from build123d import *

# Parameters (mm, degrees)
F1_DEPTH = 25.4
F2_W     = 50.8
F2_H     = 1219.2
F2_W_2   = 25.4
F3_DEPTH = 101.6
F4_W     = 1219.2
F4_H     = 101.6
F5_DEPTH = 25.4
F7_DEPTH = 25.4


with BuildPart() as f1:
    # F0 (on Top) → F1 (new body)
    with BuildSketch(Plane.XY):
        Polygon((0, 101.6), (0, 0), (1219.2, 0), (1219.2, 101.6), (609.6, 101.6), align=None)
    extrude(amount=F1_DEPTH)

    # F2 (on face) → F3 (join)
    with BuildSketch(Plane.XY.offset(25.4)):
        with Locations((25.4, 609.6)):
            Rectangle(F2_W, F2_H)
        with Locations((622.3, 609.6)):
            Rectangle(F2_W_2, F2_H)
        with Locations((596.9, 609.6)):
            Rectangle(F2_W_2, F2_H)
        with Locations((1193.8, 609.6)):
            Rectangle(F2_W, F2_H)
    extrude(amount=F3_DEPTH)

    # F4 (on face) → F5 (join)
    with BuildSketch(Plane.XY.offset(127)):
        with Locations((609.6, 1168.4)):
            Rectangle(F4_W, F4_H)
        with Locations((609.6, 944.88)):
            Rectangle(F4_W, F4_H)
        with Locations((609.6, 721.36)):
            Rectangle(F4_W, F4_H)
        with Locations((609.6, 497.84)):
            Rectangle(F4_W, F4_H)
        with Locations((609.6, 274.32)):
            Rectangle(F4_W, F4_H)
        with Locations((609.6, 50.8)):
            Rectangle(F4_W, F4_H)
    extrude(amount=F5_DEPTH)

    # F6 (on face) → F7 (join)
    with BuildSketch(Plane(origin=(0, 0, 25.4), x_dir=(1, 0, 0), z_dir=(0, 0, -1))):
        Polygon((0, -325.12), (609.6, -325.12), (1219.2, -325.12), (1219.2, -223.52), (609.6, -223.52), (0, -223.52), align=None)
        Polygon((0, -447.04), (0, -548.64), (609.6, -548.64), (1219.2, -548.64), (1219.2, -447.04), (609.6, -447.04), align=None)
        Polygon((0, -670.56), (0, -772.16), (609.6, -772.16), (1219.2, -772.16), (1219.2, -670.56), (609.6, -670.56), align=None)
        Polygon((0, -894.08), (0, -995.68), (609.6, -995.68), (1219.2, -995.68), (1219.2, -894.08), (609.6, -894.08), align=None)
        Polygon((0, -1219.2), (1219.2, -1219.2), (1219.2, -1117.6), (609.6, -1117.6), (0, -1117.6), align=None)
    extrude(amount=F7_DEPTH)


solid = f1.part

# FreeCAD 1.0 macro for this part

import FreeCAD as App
import Part
import Sketcher
Q = App.Units.Quantity

doc = App.newDocument("Part")
body = doc.addObject("PartDesign::Body", "Body")

# Sketch on XY plane
sketch1 = body.newObject("Sketcher::SketchObject", "Sketch")
sketch1.AttachmentSupport = (doc.getObject("XY_Plane"), [""])
sketch1.MapMode = "FlatFace"
sketch1.addGeometry([
    Part.LineSegment(App.Vector(0, 101.6, 0), App.Vector(0, 0, 0)),
    Part.LineSegment(App.Vector(0, 0, 0), App.Vector(1219.2, 0, 0)),
    Part.LineSegment(App.Vector(1219.2, 0, 0), App.Vector(1219.2, 101.6, 0)),
    Part.LineSegment(App.Vector(1219.2, 101.6, 0), App.Vector(0, 101.6, 0)),
], False)
sketch1.addConstraint([
    Sketcher.Constraint("Coincident", 0, 2, 1, 1),
    Sketcher.Constraint("Coincident", 1, 2, 2, 1),
    Sketcher.Constraint("Coincident", 2, 2, 3, 1),
    Sketcher.Constraint("Coincident", 3, 2, 0, 1),
    Sketcher.Constraint("Vertical", 0),
    Sketcher.Constraint("Horizontal", 1),
    Sketcher.Constraint("Vertical", 2),
    Sketcher.Constraint("Horizontal", 3),
    Sketcher.Constraint("Coincident", 0, 2, -1, 1),
    Sketcher.Constraint("DistanceX", 1, 1, 1, 2, Q("48 in")),
    Sketcher.Constraint("DistanceY", 0, 2, 0, 1, Q("4 in")),
])
pad1 = body.newObject("PartDesign::Pad", "Pad")
pad1.Profile = sketch1
pad1.Length = Q("1 in")

# Sketch on XY plane
sketch2 = body.newObject("Sketcher::SketchObject", "Sketch001")
sketch2.AttachmentSupport = (doc.getObject("XY_Plane"), [""])
sketch2.MapMode = "FlatFace"
sketch2.AttachmentOffset = App.Placement(App.Vector(0, 0, 1 * 25.4), App.Rotation())
sketch2.addGeometry([
    Part.LineSegment(App.Vector(0, 1219.2, 0), App.Vector(0, 0, 0)),  # 0
    Part.LineSegment(App.Vector(0, 0, 0), App.Vector(50.8, 0, 0)),  # 1
    Part.LineSegment(App.Vector(50.8, 0, 0), App.Vector(50.8, 1219.2, 0)),  # 2
    Part.LineSegment(App.Vector(50.8, 1219.2, 0), App.Vector(0, 1219.2, 0)),  # 3
    Part.LineSegment(App.Vector(635, 0, 0), App.Vector(635, 1219.2, 0)),  # 4
    Part.LineSegment(App.Vector(635, 1219.2, 0), App.Vector(584.2, 1219.2, 0)),  # 5
    Part.LineSegment(App.Vector(584.2, 1219.2, 0), App.Vector(584.2, 0, 0)),  # 6
    Part.LineSegment(App.Vector(584.2, 0, 0), App.Vector(635, 0, 0)),  # 7
    Part.LineSegment(App.Vector(1168.4, 1219.2, 0), App.Vector(1168.4, 0, 0)),  # 8
    Part.LineSegment(App.Vector(1168.4, 0, 0), App.Vector(1219.2, 0, 0)),  # 9
    Part.LineSegment(App.Vector(1219.2, 0, 0), App.Vector(1219.2, 1219.2, 0)),  # 10
    Part.LineSegment(App.Vector(1219.2, 1219.2, 0), App.Vector(1168.4, 1219.2, 0)),  # 11
], False)
sketch2.addConstraint([
    Sketcher.Constraint("Coincident", 0, 2, 1, 1),
    Sketcher.Constraint("Coincident", 1, 2, 2, 1),
    Sketcher.Constraint("Coincident", 2, 2, 3, 1),
    Sketcher.Constraint("Coincident", 3, 2, 0, 1),
    Sketcher.Constraint("Coincident", 4, 2, 5, 1),
    Sketcher.Constraint("Coincident", 5, 2, 6, 1),
    Sketcher.Constraint("Coincident", 6, 2, 7, 1),
    Sketcher.Constraint("Coincident", 7, 2, 4, 1),
    Sketcher.Constraint("Coincident", 8, 2, 9, 1),
    Sketcher.Constraint("Coincident", 9, 2, 10, 1),
    Sketcher.Constraint("Coincident", 10, 2, 11, 1),
    Sketcher.Constraint("Coincident", 11, 2, 8, 1),
    Sketcher.Constraint("Vertical", 0),
    Sketcher.Constraint("Horizontal", 1),
    Sketcher.Constraint("Vertical", 2),
    Sketcher.Constraint("Horizontal", 3),
    Sketcher.Constraint("Vertical", 4),
    Sketcher.Constraint("Horizontal", 5),
    Sketcher.Constraint("Vertical", 6),
    Sketcher.Constraint("Horizontal", 7),
    Sketcher.Constraint("Vertical", 8),
    Sketcher.Constraint("Horizontal", 9),
    Sketcher.Constraint("Vertical", 10),
    Sketcher.Constraint("Horizontal", 11),
    Sketcher.Constraint("Coincident", 0, 2, -1, 1),
    Sketcher.Constraint("PointOnObject", 6, 2, -1),
    Sketcher.Constraint("PointOnObject", 8, 2, -1),
    Sketcher.Constraint("Horizontal", 3, 2, 4, 2),
    Sketcher.Constraint("Horizontal", 5, 2, 10, 2),
    Sketcher.Constraint("Equal", 3, 5),
    Sketcher.Constraint("Equal", 7, 9),
    Sketcher.Constraint("DistanceX", 1, 1, 1, 2, Q("2 in")),
    Sketcher.Constraint("DistanceY", 0, 2, 0, 1, Q("48 in")),
    Sketcher.Constraint("DistanceX", -1, 1, 4, 2, Q("25 in")),
    Sketcher.Constraint("DistanceX", -1, 1, 8, 2, Q("46 in")),
])
pad2 = body.newObject("PartDesign::Pad", "Pad001")
pad2.Profile = sketch2
pad2.Length = Q("4 in")

# Sketch on XY plane
sketch3 = body.newObject("Sketcher::SketchObject", "Sketch002")
sketch3.AttachmentSupport = (doc.getObject("XY_Plane"), [""])
sketch3.MapMode = "FlatFace"
sketch3.AttachmentOffset = App.Placement(App.Vector(0, 0, 5 * 25.4), App.Rotation())
sketch3.addGeometry([
    Part.LineSegment(App.Vector(0, 1219.2, 0), App.Vector(0, 1117.6, 0)),  # 0
    Part.LineSegment(App.Vector(0, 1117.6, 0), App.Vector(1219.2, 1117.6, 0)),  # 1
    Part.LineSegment(App.Vector(1219.2, 1117.6, 0), App.Vector(1219.2, 1219.2, 0)),  # 2
    Part.LineSegment(App.Vector(1219.2, 1219.2, 0), App.Vector(0, 1219.2, 0)),  # 3
    Part.LineSegment(App.Vector(0, 995.68, 0), App.Vector(0, 894.08, 0)),  # 4
    Part.LineSegment(App.Vector(0, 894.08, 0), App.Vector(1219.2, 894.08, 0)),  # 5
    Part.LineSegment(App.Vector(1219.2, 894.08, 0), App.Vector(1219.2, 995.68, 0)),  # 6
    Part.LineSegment(App.Vector(1219.2, 995.68, 0), App.Vector(0, 995.68, 0)),  # 7
    Part.LineSegment(App.Vector(0, 772.16, 0), App.Vector(0, 670.56, 0)),  # 8
    Part.LineSegment(App.Vector(0, 670.56, 0), App.Vector(1219.2, 670.56, 0)),  # 9
    Part.LineSegment(App.Vector(1219.2, 670.56, 0), App.Vector(1219.2, 772.16, 0)),  # 10
    Part.LineSegment(App.Vector(1219.2, 772.16, 0), App.Vector(0, 772.16, 0)),  # 11
    Part.LineSegment(App.Vector(0, 548.64, 0), App.Vector(0, 447.04, 0)),  # 12
    Part.LineSegment(App.Vector(0, 447.04, 0), App.Vector(1219.2, 447.04, 0)),  # 13
    Part.LineSegment(App.Vector(1219.2, 447.04, 0), App.Vector(1219.2, 548.64, 0)),  # 14
    Part.LineSegment(App.Vector(1219.2, 548.64, 0), App.Vector(0, 548.64, 0)),  # 15
    Part.LineSegment(App.Vector(0, 325.12, 0), App.Vector(0, 223.52, 0)),  # 16
    Part.LineSegment(App.Vector(0, 223.52, 0), App.Vector(1219.2, 223.52, 0)),  # 17
    Part.LineSegment(App.Vector(1219.2, 223.52, 0), App.Vector(1219.2, 325.12, 0)),  # 18
    Part.LineSegment(App.Vector(1219.2, 325.12, 0), App.Vector(0, 325.12, 0)),  # 19
    Part.LineSegment(App.Vector(0, 101.6, 0), App.Vector(0, 0, 0)),  # 20
    Part.LineSegment(App.Vector(0, 0, 0), App.Vector(1219.2, 0, 0)),  # 21
    Part.LineSegment(App.Vector(1219.2, 0, 0), App.Vector(1219.2, 101.6, 0)),  # 22
    Part.LineSegment(App.Vector(1219.2, 101.6, 0), App.Vector(0, 101.6, 0)),  # 23
], False)
sketch3.addConstraint([
    Sketcher.Constraint("Coincident", 0, 2, 1, 1),
    Sketcher.Constraint("Coincident", 1, 2, 2, 1),
    Sketcher.Constraint("Coincident", 2, 2, 3, 1),
    Sketcher.Constraint("Coincident", 3, 2, 0, 1),
    Sketcher.Constraint("Coincident", 4, 2, 5, 1),
    Sketcher.Constraint("Coincident", 5, 2, 6, 1),
    Sketcher.Constraint("Coincident", 6, 2, 7, 1),
    Sketcher.Constraint("Coincident", 7, 2, 4, 1),
    Sketcher.Constraint("Coincident", 8, 2, 9, 1),
    Sketcher.Constraint("Coincident", 9, 2, 10, 1),
    Sketcher.Constraint("Coincident", 10, 2, 11, 1),
    Sketcher.Constraint("Coincident", 11, 2, 8, 1),
    Sketcher.Constraint("Coincident", 12, 2, 13, 1),
    Sketcher.Constraint("Coincident", 13, 2, 14, 1),
    Sketcher.Constraint("Coincident", 14, 2, 15, 1),
    Sketcher.Constraint("Coincident", 15, 2, 12, 1),
    Sketcher.Constraint("Coincident", 16, 2, 17, 1),
    Sketcher.Constraint("Coincident", 17, 2, 18, 1),
    Sketcher.Constraint("Coincident", 18, 2, 19, 1),
    Sketcher.Constraint("Coincident", 19, 2, 16, 1),
    Sketcher.Constraint("Coincident", 20, 2, 21, 1),
    Sketcher.Constraint("Coincident", 21, 2, 22, 1),
    Sketcher.Constraint("Coincident", 22, 2, 23, 1),
    Sketcher.Constraint("Coincident", 23, 2, 20, 1),
    Sketcher.Constraint("Vertical", 0),
    Sketcher.Constraint("Horizontal", 1),
    Sketcher.Constraint("Vertical", 2),
    Sketcher.Constraint("Horizontal", 3),
    Sketcher.Constraint("Vertical", 4),
    Sketcher.Constraint("Horizontal", 5),
    Sketcher.Constraint("Vertical", 6),
    Sketcher.Constraint("Horizontal", 7),
    Sketcher.Constraint("Vertical", 8),
    Sketcher.Constraint("Horizontal", 9),
    Sketcher.Constraint("Vertical", 10),
    Sketcher.Constraint("Horizontal", 11),
    Sketcher.Constraint("Vertical", 12),
    Sketcher.Constraint("Horizontal", 13),
    Sketcher.Constraint("Vertical", 14),
    Sketcher.Constraint("Horizontal", 15),
    Sketcher.Constraint("Vertical", 16),
    Sketcher.Constraint("Horizontal", 17),
    Sketcher.Constraint("Vertical", 18),
    Sketcher.Constraint("Horizontal", 19),
    Sketcher.Constraint("Vertical", 20),
    Sketcher.Constraint("Horizontal", 21),
    Sketcher.Constraint("Vertical", 22),
    Sketcher.Constraint("Horizontal", 23),
    Sketcher.Constraint("Coincident", 20, 2, -1, 1),
    Sketcher.Constraint("PointOnObject", 0, 2, -2),
    Sketcher.Constraint("PointOnObject", 4, 2, -2),
    Sketcher.Constraint("PointOnObject", 8, 2, -2),
    Sketcher.Constraint("PointOnObject", 12, 2, -2),
    Sketcher.Constraint("PointOnObject", 16, 2, -2),
    Sketcher.Constraint("Vertical", 2, 2, 5, 2),
    Sketcher.Constraint("Vertical", 6, 2, 9, 2),
    Sketcher.Constraint("Vertical", 10, 2, 13, 2),
    Sketcher.Constraint("Vertical", 14, 2, 17, 2),
    Sketcher.Constraint("Vertical", 18, 2, 21, 2),
    Sketcher.Constraint("Equal", 2, 4),
    Sketcher.Constraint("Equal", 6, 8),
    Sketcher.Constraint("Equal", 10, 12),
    Sketcher.Constraint("Equal", 14, 16),
    Sketcher.Constraint("Equal", 18, 20),
    Sketcher.Constraint("DistanceX", 1, 1, 1, 2, Q("48 in")),
    Sketcher.Constraint("DistanceY", 0, 2, 0, 1, Q("4 in")),
    Sketcher.Constraint("DistanceY", -1, 1, 0, 2, Q("44 in")),
    Sketcher.Constraint("DistanceY", -1, 1, 4, 2, Q("35.2 in")),
    Sketcher.Constraint("DistanceY", -1, 1, 8, 2, Q("26.4 in")),
    Sketcher.Constraint("DistanceY", -1, 1, 12, 2, Q("17.6 in")),
    Sketcher.Constraint("DistanceY", -1, 1, 16, 2, Q("8.8 in")),
])
pad3 = body.newObject("PartDesign::Pad", "Pad002")
pad3.Profile = sketch3
pad3.Length = Q("1 in")

# Sketch on XY plane
sketch4 = body.newObject("Sketcher::SketchObject", "Sketch003")
sketch4.AttachmentSupport = (doc.getObject("XY_Plane"), [""])
sketch4.MapMode = "FlatFace"
sketch4.AttachmentOffset = App.Placement(App.Vector(0, 0, 1 * 25.4), App.Rotation())
sketch4.addGeometry([
    Part.LineSegment(App.Vector(0, 325.12, 0), App.Vector(1219.2, 325.12, 0)),  # 0
    Part.LineSegment(App.Vector(1219.2, 325.12, 0), App.Vector(1219.2, 223.52, 0)),  # 1
    Part.LineSegment(App.Vector(1219.2, 223.52, 0), App.Vector(0, 223.52, 0)),  # 2
    Part.LineSegment(App.Vector(0, 223.52, 0), App.Vector(0, 325.12, 0)),  # 3
    Part.LineSegment(App.Vector(0, 447.04, 0), App.Vector(0, 548.64, 0)),  # 4
    Part.LineSegment(App.Vector(0, 548.64, 0), App.Vector(1219.2, 548.64, 0)),  # 5
    Part.LineSegment(App.Vector(1219.2, 548.64, 0), App.Vector(1219.2, 447.04, 0)),  # 6
    Part.LineSegment(App.Vector(1219.2, 447.04, 0), App.Vector(0, 447.04, 0)),  # 7
    Part.LineSegment(App.Vector(0, 670.56, 0), App.Vector(0, 772.16, 0)),  # 8
    Part.LineSegment(App.Vector(0, 772.16, 0), App.Vector(1219.2, 772.16, 0)),  # 9
    Part.LineSegment(App.Vector(1219.2, 772.16, 0), App.Vector(1219.2, 670.56, 0)),  # 10
    Part.LineSegment(App.Vector(1219.2, 670.56, 0), App.Vector(0, 670.56, 0)),  # 11
    Part.LineSegment(App.Vector(0, 894.08, 0), App.Vector(0, 995.68, 0)),  # 12
    Part.LineSegment(App.Vector(0, 995.68, 0), App.Vector(1219.2, 995.68, 0)),  # 13
    Part.LineSegment(App.Vector(1219.2, 995.68, 0), App.Vector(1219.2, 894.08, 0)),  # 14
    Part.LineSegment(App.Vector(1219.2, 894.08, 0), App.Vector(0, 894.08, 0)),  # 15
    Part.LineSegment(App.Vector(0, 1219.2, 0), App.Vector(1219.2, 1219.2, 0)),  # 16
    Part.LineSegment(App.Vector(1219.2, 1219.2, 0), App.Vector(1219.2, 1117.6, 0)),  # 17
    Part.LineSegment(App.Vector(1219.2, 1117.6, 0), App.Vector(0, 1117.6, 0)),  # 18
    Part.LineSegment(App.Vector(0, 1117.6, 0), App.Vector(0, 1219.2, 0)),  # 19
], False)
sketch4.addConstraint([
    Sketcher.Constraint("Coincident", 0, 2, 1, 1),
    Sketcher.Constraint("Coincident", 1, 2, 2, 1),
    Sketcher.Constraint("Coincident", 2, 2, 3, 1),
    Sketcher.Constraint("Coincident", 3, 2, 0, 1),
    Sketcher.Constraint("Coincident", 4, 2, 5, 1),
    Sketcher.Constraint("Coincident", 5, 2, 6, 1),
    Sketcher.Constraint("Coincident", 6, 2, 7, 1),
    Sketcher.Constraint("Coincident", 7, 2, 4, 1),
    Sketcher.Constraint("Coincident", 8, 2, 9, 1),
    Sketcher.Constraint("Coincident", 9, 2, 10, 1),
    Sketcher.Constraint("Coincident", 10, 2, 11, 1),
    Sketcher.Constraint("Coincident", 11, 2, 8, 1),
    Sketcher.Constraint("Coincident", 12, 2, 13, 1),
    Sketcher.Constraint("Coincident", 13, 2, 14, 1),
    Sketcher.Constraint("Coincident", 14, 2, 15, 1),
    Sketcher.Constraint("Coincident", 15, 2, 12, 1),
    Sketcher.Constraint("Coincident", 16, 2, 17, 1),
    Sketcher.Constraint("Coincident", 17, 2, 18, 1),
    Sketcher.Constraint("Coincident", 18, 2, 19, 1),
    Sketcher.Constraint("Coincident", 19, 2, 16, 1),
    Sketcher.Constraint("Horizontal", 0),
    Sketcher.Constraint("Vertical", 1),
    Sketcher.Constraint("Horizontal", 2),
    Sketcher.Constraint("Vertical", 3),
    Sketcher.Constraint("Vertical", 4),
    Sketcher.Constraint("Horizontal", 5),
    Sketcher.Constraint("Vertical", 6),
    Sketcher.Constraint("Horizontal", 7),
    Sketcher.Constraint("Vertical", 8),
    Sketcher.Constraint("Horizontal", 9),
    Sketcher.Constraint("Vertical", 10),
    Sketcher.Constraint("Horizontal", 11),
    Sketcher.Constraint("Vertical", 12),
    Sketcher.Constraint("Horizontal", 13),
    Sketcher.Constraint("Vertical", 14),
    Sketcher.Constraint("Horizontal", 15),
    Sketcher.Constraint("Horizontal", 16),
    Sketcher.Constraint("Vertical", 17),
    Sketcher.Constraint("Horizontal", 18),
    Sketcher.Constraint("Vertical", 19),
    Sketcher.Constraint("PointOnObject", 2, 2, -2),
    Sketcher.Constraint("PointOnObject", 4, 2, -2),
    Sketcher.Constraint("PointOnObject", 8, 2, -2),
    Sketcher.Constraint("PointOnObject", 12, 2, -2),
    Sketcher.Constraint("PointOnObject", 18, 2, -2),
    Sketcher.Constraint("Vertical", 1, 2, 5, 2),
    Sketcher.Constraint("Vertical", 6, 2, 9, 2),
    Sketcher.Constraint("Vertical", 10, 2, 13, 2),
    Sketcher.Constraint("Vertical", 14, 2, 16, 2),
    Sketcher.Constraint("Equal", 3, 4),
    Sketcher.Constraint("Equal", 6, 8),
    Sketcher.Constraint("Equal", 10, 12),
    Sketcher.Constraint("Equal", 14, 17),
    Sketcher.Constraint("DistanceX", 0, 1, 0, 2, Q("48 in")),
    Sketcher.Constraint("DistanceY", 1, 2, 1, 1, Q("4 in")),
    Sketcher.Constraint("DistanceY", -1, 1, 16, 2, Q("48 in")),
    Sketcher.Constraint("DistanceY", -1, 1, 0, 2, Q("12.8 in")),
    Sketcher.Constraint("DistanceY", -1, 1, 4, 2, Q("21.6 in")),
    Sketcher.Constraint("DistanceY", -1, 1, 8, 2, Q("30.4 in")),
    Sketcher.Constraint("DistanceY", -1, 1, 12, 2, Q("39.2 in")),
])
pad4 = body.newObject("PartDesign::Pad", "Pad003")
pad4.Profile = sketch4
pad4.Length = Q("1 in")
pad4.Reversed = True

doc.recompute()
